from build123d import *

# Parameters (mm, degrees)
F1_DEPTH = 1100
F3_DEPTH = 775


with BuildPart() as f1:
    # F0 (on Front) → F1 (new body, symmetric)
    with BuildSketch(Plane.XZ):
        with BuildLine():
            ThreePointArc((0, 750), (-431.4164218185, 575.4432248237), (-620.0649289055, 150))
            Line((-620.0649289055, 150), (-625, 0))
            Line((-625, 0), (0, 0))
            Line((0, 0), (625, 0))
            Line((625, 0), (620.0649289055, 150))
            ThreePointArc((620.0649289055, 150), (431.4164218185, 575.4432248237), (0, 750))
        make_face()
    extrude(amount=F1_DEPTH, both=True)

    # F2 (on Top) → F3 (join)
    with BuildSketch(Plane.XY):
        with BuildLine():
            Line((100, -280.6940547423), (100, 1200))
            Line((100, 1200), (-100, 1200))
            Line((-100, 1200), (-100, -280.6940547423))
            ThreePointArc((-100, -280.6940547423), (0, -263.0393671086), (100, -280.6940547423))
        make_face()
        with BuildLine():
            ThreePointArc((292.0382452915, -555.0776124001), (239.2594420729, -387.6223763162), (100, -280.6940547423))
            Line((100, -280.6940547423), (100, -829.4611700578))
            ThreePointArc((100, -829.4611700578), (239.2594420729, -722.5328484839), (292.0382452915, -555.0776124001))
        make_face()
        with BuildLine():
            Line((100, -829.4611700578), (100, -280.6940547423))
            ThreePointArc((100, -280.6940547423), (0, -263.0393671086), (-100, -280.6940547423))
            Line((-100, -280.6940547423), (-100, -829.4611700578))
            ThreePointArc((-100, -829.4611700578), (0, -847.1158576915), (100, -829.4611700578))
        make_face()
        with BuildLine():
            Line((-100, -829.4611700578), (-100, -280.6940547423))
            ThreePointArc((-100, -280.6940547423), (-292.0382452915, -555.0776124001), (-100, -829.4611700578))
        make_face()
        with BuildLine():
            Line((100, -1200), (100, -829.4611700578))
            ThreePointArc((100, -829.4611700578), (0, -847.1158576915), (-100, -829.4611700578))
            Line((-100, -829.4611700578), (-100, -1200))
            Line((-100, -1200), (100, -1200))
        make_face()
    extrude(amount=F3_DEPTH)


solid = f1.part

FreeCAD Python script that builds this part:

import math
import FreeCAD as App
import Part
import Sketcher
from FreeCAD import Vector
Q = App.Units.Quantity

doc = App.newDocument("Part")
params = doc.addObject("Spreadsheet::Sheet", "Params")
for row, (alias, value) in enumerate([
    ("sketch1_width", "1250 mm"),
    ("pad1_length", "2200 mm"),
    ("sketch2_width", "200 mm"),
    ("pad2_length", "775 mm"),
], start=1):
    params.set(f"A{row}", alias)
    params.set(f"B{row}", "=" + value)
    params.setAlias(f"B{row}", alias)

body = doc.addObject("PartDesign::Body", "Body")

# Sketch on XZ plane
sketch1 = body.newObject("Sketcher::SketchObject", "Sketch")
sketch1.AttachmentSupport = (doc.getObject("XZ_Plane"), [""])
sketch1.MapMode = "FlatFace"
sketch1.addGeometry(Part.LineSegment(Vector(-620, 150, 0), Vector(-625, 0, 0)), False)
sketch1.addGeometry(Part.LineSegment(Vector(-625, 0, 0), Vector(625, 0, 0)), False)
sketch1.addGeometry(Part.LineSegment(Vector(625, 0, 0), Vector(620, 150, 0)), False)
sketch1.addGeometry(Part.ArcOfCircle(Part.Circle(Vector(0, 130, 0), Vector(0, 0, 1), 620), math.radians(2), math.radians(178)), False)
sketch1.addConstraint(Sketcher.Constraint("Coincident", 0, 2, 1, 1))
sketch1.addConstraint(Sketcher.Constraint("Coincident", 1, 2, 2, 1))
sketch1.addConstraint(Sketcher.Constraint("Tangent", 2, 2, 3, 1))
sketch1.addConstraint(Sketcher.Constraint("Tangent", 3, 2, 0, 1))
sketch1.addConstraint(Sketcher.Constraint("Horizontal", 1))
sketch1.addConstraint(Sketcher.Constraint("Symmetric", 0, 2, 1, 2, -1, 1))
sketch1.addConstraint(Sketcher.Constraint("PointOnObject", 3, 3, -2))
sketch1.addConstraint(Sketcher.Constraint("DistanceX", 1, 1, 1, 2, Q("1250 mm")))
sketch1.addConstraint(Sketcher.Constraint("DistanceY", -1, 1, 2, 2, Q("150 mm")))
sketch1.addConstraint(Sketcher.Constraint("Radius", 3, Q("620.40043 mm")))
sketch1.setExpression("Constraints[7]", "Params.sketch1_width")
pad1 = body.newObject("PartDesign::Pad", "Pad")
pad1.Profile = sketch1
pad1.setExpression("Length", "Params.pad1_length")
pad1.Midplane = True

# Sketch on XY plane
sketch2 = body.newObject("Sketcher::SketchObject", "Sketch001")
sketch2.AttachmentSupport = (doc.getObject("XY_Plane"), [""])
sketch2.MapMode = "FlatFace"
sketch2.addGeometry(Part.LineSegment(Vector(100, -281, 0), Vector(100, 1200, 0)), False)
sketch2.addGeometry(Part.LineSegment(Vector(100, 1200, 0), Vector(-100, 1200, 0)), False)
sketch2.addGeometry(Part.LineSegment(Vector(-100, 1200, 0), Vector(-100, -281, 0)), False)
sketch2.addGeometry(Part.ArcOfCircle(Part.Circle(Vector(0, -555, 0), Vector(0, 0, 1), 292), math.radians(110), math.radians(250)), False)
sketch2.addGeometry(Part.LineSegment(Vector(-100, -829, 0), Vector(-100, -1200, 0)), False)
sketch2.addGeometry(Part.LineSegment(Vector(-100, -1200, 0), Vector(100, -1200, 0)), False)
sketch2.addGeometry(Part.LineSegment(Vector(100, -1200, 0), Vector(100, -829, 0)), False)
sketch2.addGeometry(Part.ArcOfCircle(Part.Circle(Vector(0, -555, 0), Vector(0, 0, 1), 292), math.radians(-70), math.radians(70)), False)
sketch2.addConstraint(Sketcher.Constraint("Coincident", 0, 2, 1, 1))
sketch2.addConstraint(Sketcher.Constraint("Coincident", 1, 2, 2, 1))
sketch2.addConstraint(Sketcher.Constraint("Coincident", 2, 2, 3, 1))
sketch2.addConstraint(Sketcher.Constraint("Coincident", 3, 2, 4, 1))
sketch2.addConstraint(Sketcher.Constraint("Coincident", 4, 2, 5, 1))
sketch2.addConstraint(Sketcher.Constraint("Coincident", 5, 2, 6, 1))
sketch2.addConstraint(Sketcher.Constraint("Coincident", 6, 2, 7, 1))
sketch2.addConstraint(Sketcher.Constraint("Coincident", 7, 2, 0, 1))
sketch2.addConstraint(Sketcher.Constraint("Vertical", 0))
sketch2.addConstraint(Sketcher.Constraint("Horizontal", 1))
sketch2.addConstraint(Sketcher.Constraint("Vertical", 2))
sketch2.addConstraint(Sketcher.Constraint("Vertical", 4))
sketch2.addConstraint(Sketcher.Constraint("Horizontal", 5))
sketch2.addConstraint(Sketcher.Constraint("Vertical", 6))
sketch2.addConstraint(Sketcher.Constraint("Coincident", 7, 3, 3, 3))
sketch2.addConstraint(Sketcher.Constraint("Equal", 3, 7))
sketch2.addConstraint(Sketcher.Constraint("Symmetric", 0, 2, 4, 2, -1, 1))
sketch2.addConstraint(Sketcher.Constraint("Symmetric", 3, 2, 6, 2, -2))
sketch2.addConstraint(Sketcher.Constraint("Horizontal", 2, 2, 7, 2))
sketch2.addConstraint(Sketcher.Constraint("DistanceX", 1, 2, 1, 1, Q("200 mm")))
sketch2.addConstraint(Sketcher.Constraint("DistanceY", -1, 1, 0, 2, Q("1200 mm")))
sketch2.addConstraint(Sketcher.Constraint("Radius", 3, Q("292.038245 mm")))
sketch2.addConstraint(Sketcher.Constraint("DistanceY", 4, 2, 4, 1, Q("370.53883 mm")))
sketch2.setExpression("Constraints[19]", "Params.sketch2_width")
pad2 = body.newObject("PartDesign::Pad", "Pad001")
pad2.Profile = sketch2
pad2.setExpression("Length", "Params.pad2_length")

doc.recompute()
